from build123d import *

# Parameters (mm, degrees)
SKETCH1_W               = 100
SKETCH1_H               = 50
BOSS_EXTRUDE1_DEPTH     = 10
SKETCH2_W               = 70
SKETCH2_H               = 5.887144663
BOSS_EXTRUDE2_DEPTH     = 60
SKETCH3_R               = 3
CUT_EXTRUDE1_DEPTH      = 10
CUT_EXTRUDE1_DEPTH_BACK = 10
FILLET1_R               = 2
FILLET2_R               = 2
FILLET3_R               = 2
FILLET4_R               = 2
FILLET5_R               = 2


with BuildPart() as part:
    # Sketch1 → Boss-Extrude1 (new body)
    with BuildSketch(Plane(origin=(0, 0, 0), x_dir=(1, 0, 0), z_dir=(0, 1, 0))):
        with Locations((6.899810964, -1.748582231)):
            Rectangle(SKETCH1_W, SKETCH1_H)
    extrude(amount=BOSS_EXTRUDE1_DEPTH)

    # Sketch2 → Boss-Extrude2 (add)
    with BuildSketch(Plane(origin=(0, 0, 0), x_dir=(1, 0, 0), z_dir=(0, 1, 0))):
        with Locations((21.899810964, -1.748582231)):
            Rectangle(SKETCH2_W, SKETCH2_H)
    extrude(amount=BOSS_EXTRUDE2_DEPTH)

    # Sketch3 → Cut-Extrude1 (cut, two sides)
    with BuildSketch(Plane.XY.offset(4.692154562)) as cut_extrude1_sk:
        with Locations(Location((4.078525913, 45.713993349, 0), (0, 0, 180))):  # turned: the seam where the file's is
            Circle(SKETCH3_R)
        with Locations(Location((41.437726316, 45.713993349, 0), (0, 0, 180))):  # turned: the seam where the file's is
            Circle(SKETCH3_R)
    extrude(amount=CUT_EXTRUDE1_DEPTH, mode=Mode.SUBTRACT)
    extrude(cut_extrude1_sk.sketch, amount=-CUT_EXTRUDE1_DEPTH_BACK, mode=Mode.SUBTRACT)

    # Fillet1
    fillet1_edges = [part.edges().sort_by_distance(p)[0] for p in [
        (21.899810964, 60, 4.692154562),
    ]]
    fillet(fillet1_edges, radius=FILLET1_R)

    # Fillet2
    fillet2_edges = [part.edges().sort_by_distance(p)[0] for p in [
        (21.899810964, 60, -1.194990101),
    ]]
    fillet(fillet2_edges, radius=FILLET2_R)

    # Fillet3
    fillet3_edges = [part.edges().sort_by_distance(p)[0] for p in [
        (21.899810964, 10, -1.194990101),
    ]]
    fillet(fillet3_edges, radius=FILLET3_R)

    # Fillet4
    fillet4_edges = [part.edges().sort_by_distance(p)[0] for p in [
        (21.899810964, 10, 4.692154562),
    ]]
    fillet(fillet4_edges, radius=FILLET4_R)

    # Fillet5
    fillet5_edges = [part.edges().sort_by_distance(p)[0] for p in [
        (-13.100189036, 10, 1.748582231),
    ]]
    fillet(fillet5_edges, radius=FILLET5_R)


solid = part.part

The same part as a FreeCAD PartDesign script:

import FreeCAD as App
import Part
import Sketcher

V = App.Vector


def edges_at(feature, points):
    """Names of the edges that pass closest to the given points."""
    edges = feature.Shape.Edges
    near = lambda p: min(range(len(edges)), key=lambda i: edges[i].distToShape(Part.Vertex(*p))[0])
    return sorted({f"Edge{near(p) + 1}" for p in points})


def add_polygon(sketch, points):
    """Adds a closed chain of lines whose ends are joined by coincident constraints."""
    first, n = sketch.GeometryCount, len(points)
    for a, b in zip(points, points[1:] + points[:1]):
        sketch.addGeometry(Part.LineSegment(App.Vector(*a, 0), App.Vector(*b, 0)), False)
    for i in range(n):
        sketch.addConstraint(Sketcher.Constraint("Coincident", first + i, 2, first + (i + 1) % n, 1))

doc = App.newDocument("Part")
params = doc.addObject("Spreadsheet::Sheet", "Params")
for row, (alias, value) in enumerate([
    ("sketch1_width", "100 mm"),
    ("sketch1_height", "50 mm"),
    ("pad1_length", "10 mm"),
    ("sketch2_width", "70 mm"),
    ("pad2_length", "60 mm"),
    ("sketch3_diameter", "6 mm"),
    ("fillet_radius", "2 mm"),
    ("fillet2_radius", "2 mm"),
    ("fillet3_radius", "2 mm"),
    ("fillet4_radius", "2 mm"),
    ("fillet5_radius", "2 mm"),
], start=1):
    params.set(f"A{row}", alias)
    params.set(f"B{row}", "=" + value)
    params.setAlias(f"B{row}", alias)

body = doc.addObject("PartDesign::Body", "Body")

sketch1 = body.newObject("Sketcher::SketchObject", "Sketch")
sketch1.AttachmentSupport = (doc.getObject("XZ_Plane"), [""])
sketch1.MapMode = "FlatFace"
add_polygon(sketch1, [(-43, -23), (-43, 27), (57, 27), (57, -23)])
sketch1.addConstraint([
    Sketcher.Constraint("Vertical", 0),
    Sketcher.Constraint("Horizontal", 1),
    Sketcher.Constraint("Vertical", 2),
    Sketcher.Constraint("Horizontal", 3),
    Sketcher.Constraint("DistanceX", 1, 1, 1, 2, 100.0),
    Sketcher.Constraint("DistanceY", 0, 1, 0, 2, 50.0),
    Sketcher.Constraint("DistanceX", 0, 2, -1, 1, 43.100189),
    Sketcher.Constraint("DistanceY", -1, 1, 0, 2, 26.748582),
])
sketch1.setExpression("Constraints[8]", "Params.sketch1_width")
sketch1.setExpression("Constraints[9]", "Params.sketch1_height")
pad1 = body.newObject("PartDesign::Pad", "Pad")
pad1.Profile = sketch1
pad1.setExpression("Length", "Params.pad1_length")
pad1.Reversed = True

sketch2 = body.newObject("Sketcher::SketchObject", "Sketch001")
sketch2.AttachmentSupport = (doc.getObject("XZ_Plane"), [""])
sketch2.MapMode = "FlatFace"
add_polygon(sketch2, [(-13, -1), (-13, 5), (57, 5), (57, -1)])
sketch2.addConstraint([
    Sketcher.Constraint("Vertical", 0),
    Sketcher.Constraint("Horizontal", 1),
    Sketcher.Constraint("Vertical", 2),
    Sketcher.Constraint("Horizontal", 3),
    Sketcher.Constraint("DistanceX", 1, 1, 1, 2, 70.0),
    Sketcher.Constraint("DistanceY", 0, 1, 0, 2, 5.887145),
    Sketcher.Constraint("DistanceX", 0, 2, -1, 1, 13.100189),
    Sketcher.Constraint("DistanceY", 2, 2, -1, 1, 1.19499),
])
sketch2.setExpression("Constraints[8]", "Params.sketch2_width")
pad2 = body.newObject("PartDesign::Pad", "Pad001")
pad2.Profile = sketch2
pad2.setExpression("Length", "Params.pad2_length")
pad2.Reversed = True

sketch3 = body.newObject("Sketcher::SketchObject", "Sketch002")
sketch3.AttachmentSupport = (doc.getObject("XY_Plane"), [""])
sketch3.MapMode = "FlatFace"
sketch3.AttachmentOffset = App.Placement(V(0, 0, 4.692155), App.Rotation())
sketch3.addGeometry([
    Part.Circle(V(4.1, 45.7, 0), V(0, 0, 1), 3),
    Part.Circle(V(41.4, 45.7, 0), V(0, 0, 1), 3),
], False)
sketch3.addConstraint([
    Sketcher.Constraint("Equal", 0, 1),
    Sketcher.Constraint("Horizontal", 0, 3, 1, 3),
    Sketcher.Constraint("Diameter", 0, 6.0),
    Sketcher.Constraint("DistanceX", 0, 3, 1, 3, 37.3592),
    Sketcher.Constraint("DistanceX", -1, 1, 0, 3, 4.078526),
    Sketcher.Constraint("DistanceY", -1, 1, 0, 3, 45.713993),
])
sketch3.setExpression("Constraints[2]", "Params.sketch3_diameter")
pocket1 = body.newObject("PartDesign::Pocket", "Pocket")
pocket1.Profile = sketch3
pocket1.Type = "ThroughAll"
pocket1.Midplane = True
doc.recompute()

fillet = body.newObject("PartDesign::Fillet", "Fillet")
fillet.Base = (pocket1, edges_at(pocket1, [(21.9, 60, 4.692)]))
fillet.setExpression("Radius", "Params.fillet_radius")
doc.recompute()

fillet2 = body.newObject("PartDesign::Fillet", "Fillet001")
fillet2.Base = (fillet, edges_at(fillet, [(21.9, 60, -1.195)]))
fillet2.setExpression("Radius", "Params.fillet2_radius")
doc.recompute()

fillet3 = body.newObject("PartDesign::Fillet", "Fillet002")
fillet3.Base = (fillet2, edges_at(fillet2, [(21.9, 10, -1.195)]))
fillet3.setExpression("Radius", "Params.fillet3_radius")
doc.recompute()

fillet4 = body.newObject("PartDesign::Fillet", "Fillet003")
fillet4.Base = (fillet3, edges_at(fillet3, [(21.9, 10, 4.692)]))
fillet4.setExpression("Radius", "Params.fillet4_radius")
doc.recompute()

fillet5 = body.newObject("PartDesign::Fillet", "Fillet004")
fillet5.Base = (fillet4, edges_at(fillet4, [(-13.1, 10, 1.749)]))
fillet5.setExpression("Radius", "Params.fillet5_radius")

doc.recompute()
